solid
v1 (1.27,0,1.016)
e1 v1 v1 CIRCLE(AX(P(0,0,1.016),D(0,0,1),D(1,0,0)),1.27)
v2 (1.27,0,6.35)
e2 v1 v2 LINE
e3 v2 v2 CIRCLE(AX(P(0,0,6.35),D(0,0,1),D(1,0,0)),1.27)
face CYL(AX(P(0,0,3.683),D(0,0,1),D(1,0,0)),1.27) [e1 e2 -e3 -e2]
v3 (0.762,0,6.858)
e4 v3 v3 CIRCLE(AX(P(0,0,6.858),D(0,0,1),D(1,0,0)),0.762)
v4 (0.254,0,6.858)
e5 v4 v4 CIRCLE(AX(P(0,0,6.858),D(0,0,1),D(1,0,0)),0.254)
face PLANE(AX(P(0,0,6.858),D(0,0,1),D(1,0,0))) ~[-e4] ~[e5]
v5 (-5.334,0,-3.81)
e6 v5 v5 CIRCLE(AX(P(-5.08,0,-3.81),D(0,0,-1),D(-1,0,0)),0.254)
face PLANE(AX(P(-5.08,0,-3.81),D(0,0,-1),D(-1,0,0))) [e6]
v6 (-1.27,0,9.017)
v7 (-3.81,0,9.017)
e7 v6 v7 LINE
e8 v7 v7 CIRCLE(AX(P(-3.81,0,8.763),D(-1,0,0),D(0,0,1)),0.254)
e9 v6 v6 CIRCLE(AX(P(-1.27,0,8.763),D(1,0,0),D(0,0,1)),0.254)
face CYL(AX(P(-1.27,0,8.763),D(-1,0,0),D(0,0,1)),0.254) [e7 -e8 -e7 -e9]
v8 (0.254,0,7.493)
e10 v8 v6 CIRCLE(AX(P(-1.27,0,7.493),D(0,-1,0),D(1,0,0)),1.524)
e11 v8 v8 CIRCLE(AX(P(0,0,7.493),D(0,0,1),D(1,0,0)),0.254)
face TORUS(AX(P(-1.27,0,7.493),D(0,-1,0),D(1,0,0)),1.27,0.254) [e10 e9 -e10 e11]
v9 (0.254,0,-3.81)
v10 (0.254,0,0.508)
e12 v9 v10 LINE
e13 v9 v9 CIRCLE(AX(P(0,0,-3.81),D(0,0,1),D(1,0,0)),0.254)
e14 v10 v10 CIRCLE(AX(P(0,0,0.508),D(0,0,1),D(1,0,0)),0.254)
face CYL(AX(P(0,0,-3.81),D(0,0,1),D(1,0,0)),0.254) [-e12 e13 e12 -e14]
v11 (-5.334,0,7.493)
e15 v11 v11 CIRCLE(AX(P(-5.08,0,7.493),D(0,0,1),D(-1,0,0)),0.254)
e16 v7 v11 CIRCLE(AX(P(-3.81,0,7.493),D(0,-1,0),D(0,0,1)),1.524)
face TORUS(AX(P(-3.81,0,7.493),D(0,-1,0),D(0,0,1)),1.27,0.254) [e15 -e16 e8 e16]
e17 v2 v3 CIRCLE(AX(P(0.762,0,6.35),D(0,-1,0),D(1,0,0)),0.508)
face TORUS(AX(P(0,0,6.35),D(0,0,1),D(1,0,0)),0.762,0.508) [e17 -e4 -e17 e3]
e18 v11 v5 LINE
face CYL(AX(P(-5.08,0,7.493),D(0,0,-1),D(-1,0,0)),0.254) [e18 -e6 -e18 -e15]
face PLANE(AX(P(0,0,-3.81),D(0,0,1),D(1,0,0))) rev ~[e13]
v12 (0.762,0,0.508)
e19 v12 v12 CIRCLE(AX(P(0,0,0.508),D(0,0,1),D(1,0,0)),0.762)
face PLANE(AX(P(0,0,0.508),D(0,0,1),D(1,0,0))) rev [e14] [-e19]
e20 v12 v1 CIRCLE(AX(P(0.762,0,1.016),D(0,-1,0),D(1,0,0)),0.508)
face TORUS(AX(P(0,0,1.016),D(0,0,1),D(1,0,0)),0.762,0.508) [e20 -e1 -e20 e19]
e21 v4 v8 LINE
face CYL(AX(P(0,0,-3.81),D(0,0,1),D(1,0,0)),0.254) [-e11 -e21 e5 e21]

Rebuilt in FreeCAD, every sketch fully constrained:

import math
import FreeCAD as App
import Part
import Sketcher
from FreeCAD import Vector
Q = App.Units.Quantity


def edges_at(feature, points):
    """Names of the edges that pass closest to the given points."""
    edges = feature.Shape.Edges
    near = lambda p: min(range(len(edges)), key=lambda i: edges[i].distToShape(Part.Vertex(*p))[0])
    return sorted({f"Edge{near(p) + 1}" for p in points})


def add_polygon(sketch, points):
    """Adds a closed chain of lines whose ends are joined by coincident constraints."""
    first, n = sketch.GeometryCount, len(points)
    for a, b in zip(points, points[1:] + points[:1]):
        sketch.addGeometry(Part.LineSegment(App.Vector(*a, 0), App.Vector(*b, 0)), False)
    for i in range(n):
        sketch.addConstraint(Sketcher.Constraint("Coincident", first + i, 2, first + (i + 1) % n, 1))

doc = App.newDocument("Part")
body = doc.addObject("PartDesign::Body", "Body")

# Sketch on XZ plane
sketch1 = doc.addObject("Sketcher::SketchObject", "Sketch")
body.addObject(sketch1)
sketch1.AttachmentSupport = (doc.XZ_Plane, [""])
sketch1.MapMode = "FlatFace"
add_polygon(sketch1, [(0, 6.9), (0, 0.5), (1.3, 0.5), (1.3, 6.9)])  # lines 0-3
sketch1.addConstraint([
    Sketcher.Constraint("Vertical", 0),
    Sketcher.Constraint("Horizontal", 1),
    Sketcher.Constraint("Vertical", 2),
    Sketcher.Constraint("Horizontal", 3),
    Sketcher.Constraint("PointOnObject", 0, 2, -2),
    Sketcher.Constraint("DistanceX", 1, 1, 1, 2, Q("0.05 in")),
    Sketcher.Constraint("DistanceY", 0, 2, 0, 1, Q("0.25 in")),
    Sketcher.Constraint("DistanceY", -1, 1, 0, 2, Q("0.02 in")),
])
revolution = doc.addObject("PartDesign::Revolution", "Revolution")
body.addObject(revolution)
revolution.Profile = sketch1
revolution.ReferenceAxis = (sketch1, ["V_Axis"])
revolution.Angle = 360
doc.recompute()

fillet = doc.addObject("PartDesign::Fillet", "Fillet")
body.addObject(fillet)
fillet.Base = (revolution, edges_at(revolution, [(-1.27, 0, 6.858), (-1.27, 0, 0.508)]))
fillet.Radius = Q("0.02 in")

# Sketch on XY plane
sketch2 = doc.addObject("Sketcher::SketchObject", "Sketch001")
body.addObject(sketch2)
sketch2.AttachmentSupport = (doc.XY_Plane, [""])
sketch2.MapMode = "FlatFace"
sketch2.AttachmentOffset = App.Placement(Vector(0, 0, -0.15 * 25.4), App.Rotation())
sketch2.addGeometry(Part.Circle(Vector(0, 0, 0), Vector(0, 0, 1), 0.25), False)
sketch2.addConstraint([
    Sketcher.Constraint("Coincident", 0, 3, -1, 1),
    Sketcher.Constraint("Diameter", 0, Q("0.02 in")),
])

# Sketch on XZ plane
sketch3 = doc.addObject("Sketcher::SketchObject", "Sketch002")
body.addObject(sketch3)
sketch3.AttachmentSupport = (doc.XZ_Plane, [""])
sketch3.MapMode = "FlatFace"
sketch3.addGeometry([
    Part.LineSegment(Vector(0, -3.8, 0), Vector(0, 7.5, 0)),  # 0
    Part.ArcOfCircle(Part.Circle(Vector(-1.3, 7.5, 0), Vector(0, 0, 1), 1.3), math.radians(0), math.radians(90)),  # 1
    Part.LineSegment(Vector(-1.3, 8.8, 0), Vector(-3.8, 8.8, 0)),  # 2
    Part.ArcOfCircle(Part.Circle(Vector(-3.8, 7.5, 0), Vector(0, 0, 1), 1.3), math.radians(90), math.radians(180)),  # 3
    Part.LineSegment(Vector(-5.1, 7.5, 0), Vector(-5.1, -3.8, 0)),  # 4
], False)
sketch3.addConstraint([
    Sketcher.Constraint("Tangent", 0, 2, 1, 1),
    Sketcher.Constraint("Tangent", 1, 2, 2, 1),
    Sketcher.Constraint("Tangent", 2, 2, 3, 1),
    Sketcher.Constraint("Tangent", 3, 2, 4, 1),
    Sketcher.Constraint("Vertical", 0),
    Sketcher.Constraint("Horizontal", 2),
    Sketcher.Constraint("Vertical", 4),
    Sketcher.Constraint("Equal", 1, 3),
    Sketcher.Constraint("PointOnObject", 0, 1, -2),
    Sketcher.Constraint("Horizontal", 0, 1, 4, 2),
    Sketcher.Constraint("Radius", 1, Q("0.05 in")),
    Sketcher.Constraint("DistanceX", 2, 2, 2, 1, Q("0.1 in")),
    Sketcher.Constraint("DistanceY", 0, 1, 0, 2, Q("0.445 in")),
    Sketcher.Constraint("DistanceY", 0, 1, -1, 1, Q("0.15 in")),
])
doc.recompute()

additivepipe = doc.addObject("PartDesign::AdditivePipe", "AdditivePipe")
body.addObject(additivepipe)
additivepipe.Profile = sketch2
additivepipe.Spine = (sketch3, ["Edge1", "Edge2", "Edge3", "Edge4", "Edge5"])

doc.recompute()
